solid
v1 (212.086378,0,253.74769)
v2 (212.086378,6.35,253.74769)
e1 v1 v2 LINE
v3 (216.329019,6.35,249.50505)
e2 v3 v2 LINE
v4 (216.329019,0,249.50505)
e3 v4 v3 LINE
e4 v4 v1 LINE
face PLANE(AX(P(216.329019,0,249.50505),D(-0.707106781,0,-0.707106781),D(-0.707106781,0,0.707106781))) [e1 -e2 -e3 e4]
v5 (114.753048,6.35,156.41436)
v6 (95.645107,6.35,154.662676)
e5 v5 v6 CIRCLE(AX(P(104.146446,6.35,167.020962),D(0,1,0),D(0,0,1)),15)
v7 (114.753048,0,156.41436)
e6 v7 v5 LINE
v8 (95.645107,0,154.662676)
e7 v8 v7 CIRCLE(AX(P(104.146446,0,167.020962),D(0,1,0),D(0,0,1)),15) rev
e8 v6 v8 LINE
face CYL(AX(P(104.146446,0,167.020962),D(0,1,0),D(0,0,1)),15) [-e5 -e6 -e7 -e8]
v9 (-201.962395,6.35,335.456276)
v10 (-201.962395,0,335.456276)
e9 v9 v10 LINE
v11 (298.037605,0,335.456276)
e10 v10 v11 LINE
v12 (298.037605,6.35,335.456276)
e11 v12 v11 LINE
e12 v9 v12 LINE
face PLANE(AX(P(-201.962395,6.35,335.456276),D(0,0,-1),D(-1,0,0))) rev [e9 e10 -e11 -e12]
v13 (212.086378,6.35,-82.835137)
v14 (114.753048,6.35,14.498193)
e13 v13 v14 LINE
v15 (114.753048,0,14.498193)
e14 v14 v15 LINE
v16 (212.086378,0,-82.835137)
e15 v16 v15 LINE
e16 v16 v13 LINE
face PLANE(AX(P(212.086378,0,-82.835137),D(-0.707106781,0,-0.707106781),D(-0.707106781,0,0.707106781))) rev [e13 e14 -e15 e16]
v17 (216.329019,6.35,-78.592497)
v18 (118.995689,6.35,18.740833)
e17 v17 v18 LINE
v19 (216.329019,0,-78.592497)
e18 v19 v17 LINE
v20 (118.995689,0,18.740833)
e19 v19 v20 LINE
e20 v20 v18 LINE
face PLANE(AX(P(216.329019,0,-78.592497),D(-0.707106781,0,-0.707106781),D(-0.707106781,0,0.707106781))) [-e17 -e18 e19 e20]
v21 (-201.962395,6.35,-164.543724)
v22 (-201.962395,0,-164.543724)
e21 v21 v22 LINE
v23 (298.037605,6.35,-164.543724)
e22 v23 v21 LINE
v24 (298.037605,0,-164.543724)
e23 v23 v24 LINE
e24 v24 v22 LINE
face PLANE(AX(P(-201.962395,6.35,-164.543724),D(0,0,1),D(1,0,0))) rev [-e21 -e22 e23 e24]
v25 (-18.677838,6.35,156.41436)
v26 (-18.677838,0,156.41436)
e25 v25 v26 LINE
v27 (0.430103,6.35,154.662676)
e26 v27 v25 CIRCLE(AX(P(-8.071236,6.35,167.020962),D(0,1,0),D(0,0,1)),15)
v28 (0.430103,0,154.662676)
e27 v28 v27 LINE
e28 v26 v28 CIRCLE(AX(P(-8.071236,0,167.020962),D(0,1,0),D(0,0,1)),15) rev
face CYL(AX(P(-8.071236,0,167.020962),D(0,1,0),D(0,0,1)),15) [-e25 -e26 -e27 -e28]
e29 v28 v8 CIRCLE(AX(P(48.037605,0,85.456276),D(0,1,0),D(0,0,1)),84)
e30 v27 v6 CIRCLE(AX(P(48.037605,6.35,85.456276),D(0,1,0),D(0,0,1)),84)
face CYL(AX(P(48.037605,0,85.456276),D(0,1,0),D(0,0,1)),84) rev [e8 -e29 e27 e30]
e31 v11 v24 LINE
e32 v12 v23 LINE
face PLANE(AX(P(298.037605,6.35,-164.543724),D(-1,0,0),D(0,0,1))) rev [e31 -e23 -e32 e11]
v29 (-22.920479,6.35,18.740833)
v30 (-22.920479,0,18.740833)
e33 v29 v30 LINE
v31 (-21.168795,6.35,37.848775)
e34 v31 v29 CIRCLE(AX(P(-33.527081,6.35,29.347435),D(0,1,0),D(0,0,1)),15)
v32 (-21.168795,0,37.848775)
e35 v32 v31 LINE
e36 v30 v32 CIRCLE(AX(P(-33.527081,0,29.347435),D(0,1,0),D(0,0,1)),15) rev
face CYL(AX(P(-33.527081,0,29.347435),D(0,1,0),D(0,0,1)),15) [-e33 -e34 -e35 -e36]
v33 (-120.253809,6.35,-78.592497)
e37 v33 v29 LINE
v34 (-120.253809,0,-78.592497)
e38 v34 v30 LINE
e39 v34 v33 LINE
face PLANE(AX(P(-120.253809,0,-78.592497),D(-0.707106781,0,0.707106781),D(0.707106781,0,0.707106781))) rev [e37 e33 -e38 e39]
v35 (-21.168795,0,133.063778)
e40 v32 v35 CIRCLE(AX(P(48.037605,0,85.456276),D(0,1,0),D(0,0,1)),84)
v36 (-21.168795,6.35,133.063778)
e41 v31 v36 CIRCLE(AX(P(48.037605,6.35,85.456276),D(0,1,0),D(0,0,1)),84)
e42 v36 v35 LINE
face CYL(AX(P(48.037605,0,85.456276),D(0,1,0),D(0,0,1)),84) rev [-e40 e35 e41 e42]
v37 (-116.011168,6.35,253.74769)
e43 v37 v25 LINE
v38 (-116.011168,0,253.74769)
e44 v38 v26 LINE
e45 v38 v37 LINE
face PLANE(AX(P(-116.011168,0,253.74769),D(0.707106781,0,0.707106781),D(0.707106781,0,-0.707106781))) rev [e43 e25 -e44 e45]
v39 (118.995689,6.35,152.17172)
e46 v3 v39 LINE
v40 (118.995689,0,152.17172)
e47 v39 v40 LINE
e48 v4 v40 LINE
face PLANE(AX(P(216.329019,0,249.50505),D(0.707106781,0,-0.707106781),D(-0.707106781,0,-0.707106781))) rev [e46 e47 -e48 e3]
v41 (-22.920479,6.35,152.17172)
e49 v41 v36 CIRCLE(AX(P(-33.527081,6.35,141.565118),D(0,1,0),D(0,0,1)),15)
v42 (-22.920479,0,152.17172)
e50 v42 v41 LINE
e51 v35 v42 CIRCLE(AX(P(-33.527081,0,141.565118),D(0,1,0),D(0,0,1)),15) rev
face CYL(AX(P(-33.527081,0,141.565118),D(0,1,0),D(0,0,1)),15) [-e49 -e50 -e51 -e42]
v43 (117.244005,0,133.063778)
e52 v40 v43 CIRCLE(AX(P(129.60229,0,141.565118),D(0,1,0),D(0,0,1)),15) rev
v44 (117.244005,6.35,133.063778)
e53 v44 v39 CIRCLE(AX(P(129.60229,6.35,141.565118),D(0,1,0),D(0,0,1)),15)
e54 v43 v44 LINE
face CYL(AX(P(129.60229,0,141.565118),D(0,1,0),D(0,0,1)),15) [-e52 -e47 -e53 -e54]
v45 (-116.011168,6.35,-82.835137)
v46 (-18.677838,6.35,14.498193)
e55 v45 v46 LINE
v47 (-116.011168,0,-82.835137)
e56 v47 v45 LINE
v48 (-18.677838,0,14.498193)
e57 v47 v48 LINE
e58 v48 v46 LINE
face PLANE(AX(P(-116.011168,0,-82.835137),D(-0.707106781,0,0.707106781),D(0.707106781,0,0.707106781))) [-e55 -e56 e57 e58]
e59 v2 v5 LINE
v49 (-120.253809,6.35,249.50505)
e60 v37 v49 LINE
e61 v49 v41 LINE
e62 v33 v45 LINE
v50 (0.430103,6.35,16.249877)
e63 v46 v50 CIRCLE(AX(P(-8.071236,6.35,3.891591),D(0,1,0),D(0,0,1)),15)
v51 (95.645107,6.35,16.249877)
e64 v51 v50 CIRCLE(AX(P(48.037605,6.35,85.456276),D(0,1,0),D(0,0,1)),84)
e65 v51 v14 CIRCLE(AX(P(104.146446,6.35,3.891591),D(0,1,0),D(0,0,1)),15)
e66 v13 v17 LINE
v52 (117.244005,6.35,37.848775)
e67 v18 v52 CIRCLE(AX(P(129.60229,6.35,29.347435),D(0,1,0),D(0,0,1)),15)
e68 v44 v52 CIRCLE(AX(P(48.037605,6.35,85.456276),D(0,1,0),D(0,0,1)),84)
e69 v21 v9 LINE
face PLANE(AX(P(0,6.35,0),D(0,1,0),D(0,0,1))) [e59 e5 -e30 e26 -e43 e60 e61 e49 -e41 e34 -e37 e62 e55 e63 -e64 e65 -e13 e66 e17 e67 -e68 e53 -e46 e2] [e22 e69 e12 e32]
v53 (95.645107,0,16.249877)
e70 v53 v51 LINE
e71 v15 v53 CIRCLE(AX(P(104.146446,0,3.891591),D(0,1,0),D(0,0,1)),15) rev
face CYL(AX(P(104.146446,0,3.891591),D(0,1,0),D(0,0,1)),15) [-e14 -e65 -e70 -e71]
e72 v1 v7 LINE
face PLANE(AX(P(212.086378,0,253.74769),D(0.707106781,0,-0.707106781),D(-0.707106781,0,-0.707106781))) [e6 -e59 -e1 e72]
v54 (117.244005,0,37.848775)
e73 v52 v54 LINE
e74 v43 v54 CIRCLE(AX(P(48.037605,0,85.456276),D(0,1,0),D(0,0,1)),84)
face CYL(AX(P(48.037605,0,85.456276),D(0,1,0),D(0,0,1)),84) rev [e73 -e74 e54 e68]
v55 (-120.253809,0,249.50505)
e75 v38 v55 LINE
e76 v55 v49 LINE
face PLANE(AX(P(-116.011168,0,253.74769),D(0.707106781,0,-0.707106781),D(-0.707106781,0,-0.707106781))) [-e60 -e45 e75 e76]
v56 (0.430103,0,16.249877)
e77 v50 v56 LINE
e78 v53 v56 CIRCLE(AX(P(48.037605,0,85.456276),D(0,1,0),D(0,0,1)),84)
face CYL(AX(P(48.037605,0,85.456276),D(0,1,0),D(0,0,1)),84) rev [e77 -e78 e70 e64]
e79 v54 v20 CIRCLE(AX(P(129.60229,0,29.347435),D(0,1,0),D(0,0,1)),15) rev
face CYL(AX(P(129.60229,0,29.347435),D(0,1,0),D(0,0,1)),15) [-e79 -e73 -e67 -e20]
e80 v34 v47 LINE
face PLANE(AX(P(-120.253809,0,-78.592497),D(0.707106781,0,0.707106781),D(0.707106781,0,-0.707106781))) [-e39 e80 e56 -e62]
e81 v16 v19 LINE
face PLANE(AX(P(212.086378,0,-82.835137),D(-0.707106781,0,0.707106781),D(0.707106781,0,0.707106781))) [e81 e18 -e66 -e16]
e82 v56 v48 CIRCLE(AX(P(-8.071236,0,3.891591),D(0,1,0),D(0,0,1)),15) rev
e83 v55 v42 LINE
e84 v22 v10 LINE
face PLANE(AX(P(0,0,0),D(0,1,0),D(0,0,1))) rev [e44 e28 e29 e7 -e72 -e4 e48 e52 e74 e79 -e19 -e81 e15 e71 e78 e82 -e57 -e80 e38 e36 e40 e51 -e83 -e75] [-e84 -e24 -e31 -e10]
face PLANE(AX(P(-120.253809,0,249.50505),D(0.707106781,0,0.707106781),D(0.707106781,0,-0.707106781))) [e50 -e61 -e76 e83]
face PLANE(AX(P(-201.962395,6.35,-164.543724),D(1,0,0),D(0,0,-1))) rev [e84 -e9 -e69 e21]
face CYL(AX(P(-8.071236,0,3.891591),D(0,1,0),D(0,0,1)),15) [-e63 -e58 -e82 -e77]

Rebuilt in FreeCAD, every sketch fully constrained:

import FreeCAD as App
import Part
import Sketcher

V = App.Vector


def edges_at(feature, points):
    """Names of the edges that pass closest to the given points."""
    edges = feature.Shape.Edges
    near = lambda p: min(range(len(edges)), key=lambda i: edges[i].distToShape(Part.Vertex(*p))[0])
    return sorted({f"Edge{near(p) + 1}" for p in points})


def add_polygon(sketch, points):
    """Adds a closed chain of lines whose ends are joined by coincident constraints."""
    first, n = sketch.GeometryCount, len(points)
    for a, b in zip(points, points[1:] + points[:1]):
        sketch.addGeometry(Part.LineSegment(App.Vector(*a, 0), App.Vector(*b, 0)), False)
    for i in range(n):
        sketch.addConstraint(Sketcher.Constraint("Coincident", first + i, 2, first + (i + 1) % n, 1))

doc = App.newDocument("Part")
params = doc.addObject("Spreadsheet::Sheet", "Params")
for row, (alias, value) in enumerate([
    ("sketch1_width", "500 mm"),
    ("pad1_length", "6.35 mm"),
    ("sketch2_diameter", "168 mm"),
    ("pocket1_length", "6.35 mm"),
    ("sketch3_length", "160 mm"),
    ("sketch3_length2", "6 mm"),
    ("pocket2_length", "6.35 mm"),
    ("fillet_radius", "15 mm"),
], start=1):
    params.set(f"A{row}", alias)
    params.set(f"B{row}", "=" + value)
    params.setAlias(f"B{row}", alias)

body = doc.addObject("PartDesign::Body", "Body")

sketch1 = body.newObject("Sketcher::SketchObject", "Sketch")
sketch1.AttachmentSupport = (doc.getObject("XZ_Plane"), [""])
sketch1.MapMode = "FlatFace"
add_polygon(sketch1, [(-202, -165), (-202, 335), (298, 335), (298, -165)])
sketch1.addConstraint(Sketcher.Constraint("Vertical", 0))
sketch1.addConstraint(Sketcher.Constraint("Horizontal", 1))
sketch1.addConstraint(Sketcher.Constraint("Vertical", 2))
sketch1.addConstraint(Sketcher.Constraint("Horizontal", 3))
sketch1.addConstraint(Sketcher.Constraint("Equal", 3, 0))
sketch1.addConstraint(Sketcher.Constraint("DistanceX", 1, 1, 1, 2, 500.0))
sketch1.addConstraint(Sketcher.Constraint("DistanceX", 0, 2, -1, 1, 201.962395))
sketch1.addConstraint(Sketcher.Constraint("DistanceY", -1, 1, 0, 2, 335.456276))
sketch1.setExpression("Constraints[9]", "Params.sketch1_width")
pad1 = body.newObject("PartDesign::Pad", "Pad")
pad1.Profile = sketch1
pad1.setExpression("Length", "Params.pad1_length")
pad1.Reversed = True

sketch2 = body.newObject("Sketcher::SketchObject", "Sketch001")
sketch2.AttachmentSupport = (doc.getObject("XZ_Plane"), [""])
sketch2.MapMode = "FlatFace"
sketch2.AttachmentOffset = App.Placement(V(0, 0, -6.35), App.Rotation())
sketch2.addGeometry(Part.Circle(V(48, 85, 0), V(0, 0, 1), 84), False)
sketch2.addConstraint(Sketcher.Constraint("Diameter", 0, 168.0))
sketch2.addConstraint(Sketcher.Constraint("DistanceX", -1, 1, 0, 3, 48.037605))
sketch2.addConstraint(Sketcher.Constraint("DistanceY", -1, 1, 0, 3, 85.456276))
sketch2.setExpression("Constraints[0]", "Params.sketch2_diameter")
pocket1 = body.newObject("PartDesign::Pocket", "Pocket")
pocket1.Profile = sketch2
pocket1.setExpression("Length", "Params.pocket1_length")
pocket1.Reversed = True

sketch3 = body.newObject("Sketcher::SketchObject", "Sketch002")
sketch3.AttachmentSupport = (doc.getObject("XZ_Plane"), [""])
sketch3.MapMode = "FlatFace"
sketch3.AttachmentOffset = App.Placement(V(0, 0, -6.35), App.Rotation())
add_polygon(sketch3, [(103, 35), (216, -79), (212, -83), (99, 30)])
add_polygon(sketch3, [(-116, -83), (-120, -79), (-7, 35), (-3, 30)])
add_polygon(sketch3, [(99, 141), (212, 254), (216, 250), (103, 136)])
add_polygon(sketch3, [(-7, 136), (-120, 250), (-116, 254), (-3, 141)])
sketch3.addConstraint(Sketcher.Constraint("Perpendicular", 0, 1))
sketch3.addConstraint(Sketcher.Constraint("Perpendicular", 1, 2))
sketch3.addConstraint(Sketcher.Constraint("Perpendicular", 2, 3))
sketch3.addConstraint(Sketcher.Constraint("Perpendicular", 3, 4))
sketch3.addConstraint(Sketcher.Constraint("Perpendicular", 4, 5))
sketch3.addConstraint(Sketcher.Constraint("Perpendicular", 5, 6))
sketch3.addConstraint(Sketcher.Constraint("Perpendicular", 6, 7))
sketch3.addConstraint(Sketcher.Constraint("Parallel", 7, 8))
sketch3.addConstraint(Sketcher.Constraint("Perpendicular", 8, 9))
sketch3.addConstraint(Sketcher.Constraint("Perpendicular", 9, 10))
sketch3.addConstraint(Sketcher.Constraint("Perpendicular", 10, 11))
sketch3.addConstraint(Sketcher.Constraint("Parallel", 11, 12))
sketch3.addConstraint(Sketcher.Constraint("Perpendicular", 12, 13))
sketch3.addConstraint(Sketcher.Constraint("Perpendicular", 13, 14))
sketch3.addConstraint(Sketcher.Constraint("Perpendicular", 14, 15))
sketch3.addConstraint(Sketcher.Constraint("Horizontal", 0, 2, 4, 2))
sketch3.addConstraint(Sketcher.Constraint("Horizontal", 3, 2, 5, 2))
sketch3.addConstraint(Sketcher.Constraint("Horizontal", 2, 2, 6, 2))
sketch3.addConstraint(Sketcher.Constraint("Horizontal", 9, 2, 12, 2))
sketch3.addConstraint(Sketcher.Constraint("Horizontal", 8, 2, 13, 2))
sketch3.addConstraint(Sketcher.Constraint("Horizontal", 11, 2, 14, 2))
sketch3.addConstraint(Sketcher.Constraint("Vertical", 1, 2, 8, 2))
sketch3.addConstraint(Sketcher.Constraint("Vertical", 0, 2, 9, 2))
sketch3.addConstraint(Sketcher.Constraint("Vertical", 3, 2, 10, 2))
sketch3.addConstraint(Sketcher.Constraint("Vertical", 4, 2, 12, 2))
sketch3.addConstraint(Sketcher.Constraint("Vertical", 7, 2, 13, 2))
sketch3.addConstraint(Sketcher.Constraint("Distance", 0, 160.0))
sketch3.addConstraint(Sketcher.Constraint("Distance", 1, 6.0))
sketch3.addConstraint(Sketcher.Constraint("DistanceX", -1, 1, 0, 2, 216.329019))
sketch3.addConstraint(Sketcher.Constraint("DistanceY", -1, 1, 3, 2, 34.544588))
sketch3.addConstraint(Sketcher.Constraint("DistanceX", 4, 2, -1, 1, 120.253809))
sketch3.addConstraint(Sketcher.Constraint("DistanceY", -1, 1, 8, 2, 253.74769))
sketch3.setExpression("Constraints[42]", "Params.sketch3_length")
sketch3.setExpression("Constraints[43]", "Params.sketch3_length2")
pocket2 = body.newObject("PartDesign::Pocket", "Pocket001")
pocket2.Profile = sketch3
pocket2.setExpression("Length", "Params.pocket2_length")
pocket2.Reversed = True
doc.recompute()

fillet = body.newObject("PartDesign::Fillet", "Fillet")
fillet.Base = (pocket2, edges_at(pocket2, [
    (105.275, 3.175, 23.976),
    (109.518, 3.175, 28.219),
    (109.518, 3.175, 142.694),
    (105.275, 3.175, 146.937),
    (-13.443, 3.175, 142.694),
    (-9.2, 3.175, 146.937),
    (-13.443, 3.175, 28.219),
    (-9.2, 3.175, 23.976),
]))
fillet.setExpression("Radius", "Params.fillet_radius")

doc.recompute()
